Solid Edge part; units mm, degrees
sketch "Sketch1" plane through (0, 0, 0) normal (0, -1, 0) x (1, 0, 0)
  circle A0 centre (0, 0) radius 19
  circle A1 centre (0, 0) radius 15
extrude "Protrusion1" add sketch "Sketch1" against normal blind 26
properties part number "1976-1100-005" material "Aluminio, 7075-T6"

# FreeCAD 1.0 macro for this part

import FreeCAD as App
import Part
import Sketcher

V = App.Vector
Q = App.Units.Quantity

doc = App.newDocument("Part")
body = doc.addObject("PartDesign::Body", "Body")

sketch1 = body.newObject("Sketcher::SketchObject", "Sketch")
sketch1.AttachmentSupport = (doc.getObject("XZ_Plane"), [""])
sketch1.MapMode = "FlatFace"
sketch1.addGeometry([
    Part.Circle(V(0, 0, 0), V(0, 0, 1), 19),
    Part.Circle(V(0, 0, 0), V(0, 0, 1), 15),
], False)
sketch1.addConstraint([
    Sketcher.Constraint("Coincident", 0, 3, -1, 1),
    Sketcher.Constraint("Coincident", 1, 3, -1, 1),
    Sketcher.Constraint("Diameter", 0, Q("38 mm")),
    Sketcher.Constraint("Diameter", 1, Q("30 mm")),
])
pad1 = body.newObject("PartDesign::Pad", "Pad")
pad1.Profile = sketch1
pad1.Length = 26
pad1.Reversed = True

doc.recompute()
